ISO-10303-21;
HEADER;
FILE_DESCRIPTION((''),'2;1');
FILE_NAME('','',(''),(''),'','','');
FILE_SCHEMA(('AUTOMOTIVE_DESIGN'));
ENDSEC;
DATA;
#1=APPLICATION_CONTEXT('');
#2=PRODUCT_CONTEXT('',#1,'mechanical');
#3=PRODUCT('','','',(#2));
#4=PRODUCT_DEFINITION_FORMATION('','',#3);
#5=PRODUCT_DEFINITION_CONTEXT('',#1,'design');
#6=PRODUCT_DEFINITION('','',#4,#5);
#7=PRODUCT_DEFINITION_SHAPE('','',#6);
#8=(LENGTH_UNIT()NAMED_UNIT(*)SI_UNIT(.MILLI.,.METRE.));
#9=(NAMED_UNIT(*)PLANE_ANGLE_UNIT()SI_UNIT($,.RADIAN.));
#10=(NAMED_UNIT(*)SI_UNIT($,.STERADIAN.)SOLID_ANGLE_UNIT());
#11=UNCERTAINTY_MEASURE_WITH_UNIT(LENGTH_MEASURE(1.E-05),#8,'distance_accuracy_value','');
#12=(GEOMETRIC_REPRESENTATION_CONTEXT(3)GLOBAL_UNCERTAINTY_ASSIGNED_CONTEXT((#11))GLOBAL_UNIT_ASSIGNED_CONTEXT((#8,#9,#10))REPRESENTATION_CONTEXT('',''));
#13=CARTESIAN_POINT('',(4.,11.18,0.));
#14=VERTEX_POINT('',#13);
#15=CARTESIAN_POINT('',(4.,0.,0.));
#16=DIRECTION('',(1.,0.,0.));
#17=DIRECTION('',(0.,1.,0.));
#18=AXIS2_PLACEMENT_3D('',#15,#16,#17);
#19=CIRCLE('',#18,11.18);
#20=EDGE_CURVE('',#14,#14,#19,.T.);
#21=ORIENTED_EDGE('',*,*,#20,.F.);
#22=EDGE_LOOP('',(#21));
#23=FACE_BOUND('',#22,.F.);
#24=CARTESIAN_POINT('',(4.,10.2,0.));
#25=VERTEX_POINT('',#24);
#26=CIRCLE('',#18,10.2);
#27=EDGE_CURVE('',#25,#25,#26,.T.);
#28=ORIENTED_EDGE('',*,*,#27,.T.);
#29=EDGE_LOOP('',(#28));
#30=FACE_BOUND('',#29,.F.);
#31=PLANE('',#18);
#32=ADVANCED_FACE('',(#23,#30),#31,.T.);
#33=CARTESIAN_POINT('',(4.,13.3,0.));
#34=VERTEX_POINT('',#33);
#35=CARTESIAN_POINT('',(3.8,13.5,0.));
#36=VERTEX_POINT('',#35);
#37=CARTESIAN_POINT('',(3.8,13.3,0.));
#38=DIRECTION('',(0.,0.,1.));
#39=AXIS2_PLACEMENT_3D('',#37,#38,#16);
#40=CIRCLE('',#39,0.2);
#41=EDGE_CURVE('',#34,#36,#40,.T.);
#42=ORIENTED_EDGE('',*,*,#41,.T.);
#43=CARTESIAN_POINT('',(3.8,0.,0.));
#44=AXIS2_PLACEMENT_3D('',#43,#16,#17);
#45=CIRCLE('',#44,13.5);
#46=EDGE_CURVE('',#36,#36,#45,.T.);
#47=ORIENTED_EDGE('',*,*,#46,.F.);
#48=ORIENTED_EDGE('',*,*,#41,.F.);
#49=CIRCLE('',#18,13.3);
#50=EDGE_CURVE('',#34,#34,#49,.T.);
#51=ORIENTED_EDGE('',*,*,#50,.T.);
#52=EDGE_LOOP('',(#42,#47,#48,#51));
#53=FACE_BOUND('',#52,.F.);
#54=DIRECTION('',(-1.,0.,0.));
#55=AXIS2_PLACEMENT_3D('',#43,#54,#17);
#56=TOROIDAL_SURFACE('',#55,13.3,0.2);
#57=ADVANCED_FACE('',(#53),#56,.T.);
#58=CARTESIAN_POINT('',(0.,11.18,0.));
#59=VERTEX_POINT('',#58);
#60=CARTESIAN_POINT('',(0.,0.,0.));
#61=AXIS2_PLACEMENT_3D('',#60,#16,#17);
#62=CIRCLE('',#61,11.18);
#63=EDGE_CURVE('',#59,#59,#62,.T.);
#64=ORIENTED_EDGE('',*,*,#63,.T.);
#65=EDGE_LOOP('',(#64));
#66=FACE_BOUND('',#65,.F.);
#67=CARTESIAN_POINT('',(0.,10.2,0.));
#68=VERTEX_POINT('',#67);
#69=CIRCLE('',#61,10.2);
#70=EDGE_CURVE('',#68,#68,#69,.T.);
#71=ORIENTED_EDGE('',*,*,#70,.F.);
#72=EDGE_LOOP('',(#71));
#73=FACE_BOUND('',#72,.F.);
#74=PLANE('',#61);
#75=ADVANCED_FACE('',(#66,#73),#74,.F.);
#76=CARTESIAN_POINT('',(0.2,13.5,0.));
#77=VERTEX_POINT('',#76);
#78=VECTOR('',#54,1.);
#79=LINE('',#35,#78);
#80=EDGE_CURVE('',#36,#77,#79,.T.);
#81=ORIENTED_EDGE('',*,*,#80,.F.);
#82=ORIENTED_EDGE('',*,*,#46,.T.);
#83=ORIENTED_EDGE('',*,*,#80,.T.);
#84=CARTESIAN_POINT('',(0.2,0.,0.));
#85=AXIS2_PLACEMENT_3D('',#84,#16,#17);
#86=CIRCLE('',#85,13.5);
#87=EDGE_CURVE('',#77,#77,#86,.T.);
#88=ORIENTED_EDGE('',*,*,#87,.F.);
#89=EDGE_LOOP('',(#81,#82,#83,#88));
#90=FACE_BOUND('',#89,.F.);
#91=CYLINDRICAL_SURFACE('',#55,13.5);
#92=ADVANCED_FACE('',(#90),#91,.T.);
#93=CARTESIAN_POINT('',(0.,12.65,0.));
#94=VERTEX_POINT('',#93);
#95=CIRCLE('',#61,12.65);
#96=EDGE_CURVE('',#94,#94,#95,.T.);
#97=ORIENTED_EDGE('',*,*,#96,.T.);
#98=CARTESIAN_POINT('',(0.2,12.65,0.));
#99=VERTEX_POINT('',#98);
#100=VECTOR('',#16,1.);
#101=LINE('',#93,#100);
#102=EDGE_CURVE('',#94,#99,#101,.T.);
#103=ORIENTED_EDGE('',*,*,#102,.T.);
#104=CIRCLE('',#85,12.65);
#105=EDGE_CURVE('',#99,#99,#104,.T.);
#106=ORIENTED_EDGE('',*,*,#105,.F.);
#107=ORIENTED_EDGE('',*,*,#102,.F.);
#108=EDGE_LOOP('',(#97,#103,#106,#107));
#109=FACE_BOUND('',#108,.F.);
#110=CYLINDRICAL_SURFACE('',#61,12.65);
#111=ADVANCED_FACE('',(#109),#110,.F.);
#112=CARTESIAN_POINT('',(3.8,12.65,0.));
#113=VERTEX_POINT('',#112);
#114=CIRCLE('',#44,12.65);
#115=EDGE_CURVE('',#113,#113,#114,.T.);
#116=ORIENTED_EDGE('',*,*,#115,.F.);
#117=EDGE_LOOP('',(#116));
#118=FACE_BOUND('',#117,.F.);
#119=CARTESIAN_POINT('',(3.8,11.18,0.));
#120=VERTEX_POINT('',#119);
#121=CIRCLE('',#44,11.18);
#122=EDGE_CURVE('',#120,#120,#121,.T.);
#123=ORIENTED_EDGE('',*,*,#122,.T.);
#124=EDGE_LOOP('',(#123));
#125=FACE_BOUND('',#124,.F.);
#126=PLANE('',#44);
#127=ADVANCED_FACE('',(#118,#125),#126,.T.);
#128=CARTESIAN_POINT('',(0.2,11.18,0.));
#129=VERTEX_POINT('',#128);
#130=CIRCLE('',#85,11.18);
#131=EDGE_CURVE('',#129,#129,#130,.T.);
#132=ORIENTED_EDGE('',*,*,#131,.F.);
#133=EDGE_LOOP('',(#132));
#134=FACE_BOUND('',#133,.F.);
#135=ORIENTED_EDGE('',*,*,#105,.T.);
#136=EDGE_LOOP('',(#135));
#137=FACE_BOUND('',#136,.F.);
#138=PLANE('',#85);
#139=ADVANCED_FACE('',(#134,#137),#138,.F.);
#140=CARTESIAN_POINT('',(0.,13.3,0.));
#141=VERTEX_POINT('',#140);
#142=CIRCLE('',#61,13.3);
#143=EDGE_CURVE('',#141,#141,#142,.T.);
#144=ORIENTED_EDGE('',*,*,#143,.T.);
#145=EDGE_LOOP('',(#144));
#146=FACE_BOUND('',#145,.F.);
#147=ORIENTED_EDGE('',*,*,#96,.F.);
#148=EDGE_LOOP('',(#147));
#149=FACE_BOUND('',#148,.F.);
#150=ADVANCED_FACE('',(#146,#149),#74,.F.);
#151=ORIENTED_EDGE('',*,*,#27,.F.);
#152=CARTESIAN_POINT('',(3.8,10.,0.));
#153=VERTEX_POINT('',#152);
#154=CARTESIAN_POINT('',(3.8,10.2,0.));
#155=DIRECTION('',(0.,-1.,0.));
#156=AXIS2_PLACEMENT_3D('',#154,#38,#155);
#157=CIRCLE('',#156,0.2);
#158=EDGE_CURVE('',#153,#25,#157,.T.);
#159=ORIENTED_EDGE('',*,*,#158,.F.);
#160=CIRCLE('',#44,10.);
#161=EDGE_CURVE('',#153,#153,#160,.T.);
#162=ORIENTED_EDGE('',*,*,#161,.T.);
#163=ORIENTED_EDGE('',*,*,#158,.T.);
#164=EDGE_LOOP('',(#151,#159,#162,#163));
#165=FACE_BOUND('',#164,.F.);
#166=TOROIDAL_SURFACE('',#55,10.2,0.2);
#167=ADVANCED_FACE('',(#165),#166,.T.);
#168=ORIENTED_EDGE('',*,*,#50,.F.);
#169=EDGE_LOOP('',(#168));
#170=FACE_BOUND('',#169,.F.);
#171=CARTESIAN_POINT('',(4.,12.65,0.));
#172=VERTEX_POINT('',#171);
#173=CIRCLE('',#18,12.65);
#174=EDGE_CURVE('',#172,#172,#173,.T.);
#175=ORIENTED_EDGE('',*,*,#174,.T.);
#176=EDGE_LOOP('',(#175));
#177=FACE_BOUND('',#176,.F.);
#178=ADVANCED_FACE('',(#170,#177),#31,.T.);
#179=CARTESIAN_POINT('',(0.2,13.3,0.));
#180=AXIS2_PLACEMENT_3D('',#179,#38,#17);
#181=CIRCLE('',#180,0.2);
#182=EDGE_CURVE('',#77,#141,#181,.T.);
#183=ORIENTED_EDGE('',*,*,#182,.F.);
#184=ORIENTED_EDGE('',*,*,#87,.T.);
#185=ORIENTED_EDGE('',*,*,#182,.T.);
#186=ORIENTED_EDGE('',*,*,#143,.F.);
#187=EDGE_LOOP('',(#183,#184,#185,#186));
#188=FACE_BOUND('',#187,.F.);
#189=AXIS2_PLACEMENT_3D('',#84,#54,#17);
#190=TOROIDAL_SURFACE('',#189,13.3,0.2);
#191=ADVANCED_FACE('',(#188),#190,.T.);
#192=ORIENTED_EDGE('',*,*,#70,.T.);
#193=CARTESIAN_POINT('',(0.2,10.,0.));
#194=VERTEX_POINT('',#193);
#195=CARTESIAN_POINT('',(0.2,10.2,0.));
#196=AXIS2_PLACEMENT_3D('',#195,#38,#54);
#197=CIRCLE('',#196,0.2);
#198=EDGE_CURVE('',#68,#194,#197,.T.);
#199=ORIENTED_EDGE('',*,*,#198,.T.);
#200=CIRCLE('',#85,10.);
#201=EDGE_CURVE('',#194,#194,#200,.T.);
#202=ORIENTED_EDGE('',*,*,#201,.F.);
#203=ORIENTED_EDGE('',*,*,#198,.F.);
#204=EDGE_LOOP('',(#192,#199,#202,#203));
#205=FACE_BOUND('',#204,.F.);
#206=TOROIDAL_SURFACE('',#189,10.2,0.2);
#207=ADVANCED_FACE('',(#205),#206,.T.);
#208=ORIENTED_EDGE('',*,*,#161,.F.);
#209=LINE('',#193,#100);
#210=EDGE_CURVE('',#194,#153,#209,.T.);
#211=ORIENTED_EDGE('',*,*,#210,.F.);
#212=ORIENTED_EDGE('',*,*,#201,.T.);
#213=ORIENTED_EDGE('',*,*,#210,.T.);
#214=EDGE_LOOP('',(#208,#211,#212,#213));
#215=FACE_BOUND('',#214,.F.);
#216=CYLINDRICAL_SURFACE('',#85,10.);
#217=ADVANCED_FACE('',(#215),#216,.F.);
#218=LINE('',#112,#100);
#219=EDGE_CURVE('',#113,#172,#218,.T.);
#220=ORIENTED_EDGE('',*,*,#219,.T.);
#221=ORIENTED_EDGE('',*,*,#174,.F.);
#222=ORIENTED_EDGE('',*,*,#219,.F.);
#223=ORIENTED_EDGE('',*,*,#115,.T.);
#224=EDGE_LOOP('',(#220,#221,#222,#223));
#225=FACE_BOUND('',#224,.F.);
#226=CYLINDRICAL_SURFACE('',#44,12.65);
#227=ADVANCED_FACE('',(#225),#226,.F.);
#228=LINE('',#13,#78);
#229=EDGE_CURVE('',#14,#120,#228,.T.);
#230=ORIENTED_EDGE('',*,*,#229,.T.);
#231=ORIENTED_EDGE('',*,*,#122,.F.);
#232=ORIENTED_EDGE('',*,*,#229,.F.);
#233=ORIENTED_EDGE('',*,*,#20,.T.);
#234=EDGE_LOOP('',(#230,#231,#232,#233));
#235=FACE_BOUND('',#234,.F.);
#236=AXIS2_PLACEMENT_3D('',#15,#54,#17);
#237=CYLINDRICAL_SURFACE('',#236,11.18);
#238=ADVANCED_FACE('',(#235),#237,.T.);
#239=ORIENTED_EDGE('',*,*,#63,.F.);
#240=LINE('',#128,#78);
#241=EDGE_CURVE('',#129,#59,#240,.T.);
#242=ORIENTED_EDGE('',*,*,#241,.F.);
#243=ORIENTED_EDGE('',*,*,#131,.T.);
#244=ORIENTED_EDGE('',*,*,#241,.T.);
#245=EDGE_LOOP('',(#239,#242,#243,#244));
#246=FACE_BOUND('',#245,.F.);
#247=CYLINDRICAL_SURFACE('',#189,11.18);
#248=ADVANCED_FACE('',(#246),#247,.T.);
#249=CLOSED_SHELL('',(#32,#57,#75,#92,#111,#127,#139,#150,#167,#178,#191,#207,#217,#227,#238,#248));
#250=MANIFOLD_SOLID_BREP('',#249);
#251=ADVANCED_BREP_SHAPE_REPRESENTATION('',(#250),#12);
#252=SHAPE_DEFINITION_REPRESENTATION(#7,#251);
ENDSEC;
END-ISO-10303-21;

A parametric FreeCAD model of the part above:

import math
import FreeCAD as App
import Part
import Sketcher
from FreeCAD import Vector

doc = App.newDocument("Part")
body = doc.addObject("PartDesign::Body", "Body")

sketch1 = body.newObject("Sketcher::SketchObject", "Sketch")
sketch1.AttachmentSupport = (doc.getObject("XY_Plane"), [""])
sketch1.MapMode = "FlatFace"
sketch1.addGeometry([
    Part.LineSegment(Vector(0, 11.18, 0), Vector(0, 10.2, 0)),
    Part.ArcOfCircle(Part.Circle(Vector(0.2, 10.2, 0), Vector(0, 0, 1), 0.2), math.radians(180), math.radians(270)),
    Part.LineSegment(Vector(0.2, 10, 0), Vector(3.8, 10, 0)),
    Part.ArcOfCircle(Part.Circle(Vector(3.8, 10.2, 0), Vector(0, 0, 1), 0.2), math.radians(-90), math.radians(0)),
    Part.LineSegment(Vector(4, 10.2, 0), Vector(4, 11.18, 0)),
    Part.LineSegment(Vector(4, 11.18, 0), Vector(3.8, 11.18, 0)),
    Part.LineSegment(Vector(3.8, 11.18, 0), Vector(3.8, 12.65, 0)),
    Part.LineSegment(Vector(3.8, 12.65, 0), Vector(4, 12.65, 0)),
    Part.LineSegment(Vector(4, 12.65, 0), Vector(4, 13.3, 0)),
    Part.ArcOfCircle(Part.Circle(Vector(3.8, 13.3, 0), Vector(0, 0, 1), 0.2), math.radians(0), math.radians(90)),
    Part.LineSegment(Vector(3.8, 13.5, 0), Vector(0.2, 13.5, 0)),
    Part.ArcOfCircle(Part.Circle(Vector(0.2, 13.3, 0), Vector(0, 0, 1), 0.2), math.radians(90), math.radians(180)),
    Part.LineSegment(Vector(0, 13.3, 0), Vector(0, 12.65, 0)),
    Part.LineSegment(Vector(0, 12.65, 0), Vector(0.2, 12.65, 0)),
    Part.LineSegment(Vector(0.2, 12.65, 0), Vector(0.2, 11.18, 0)),
    Part.LineSegment(Vector(0.2, 11.18, 0), Vector(0, 11.18, 0)),
], False)
sketch1.addConstraint([
    Sketcher.Constraint("Tangent", 0, 2, 1, 1),
    Sketcher.Constraint("Tangent", 1, 2, 2, 1),
    Sketcher.Constraint("Tangent", 2, 2, 3, 1),
    Sketcher.Constraint("Tangent", 3, 2, 4, 1),
    Sketcher.Constraint("Coincident", 4, 2, 5, 1),
    Sketcher.Constraint("Coincident", 5, 2, 6, 1),
    Sketcher.Constraint("Coincident", 6, 2, 7, 1),
    Sketcher.Constraint("Coincident", 7, 2, 8, 1),
    Sketcher.Constraint("Tangent", 8, 2, 9, 1),
    Sketcher.Constraint("Tangent", 9, 2, 10, 1),
    Sketcher.Constraint("Tangent", 10, 2, 11, 1),
    Sketcher.Constraint("Tangent", 11, 2, 12, 1),
    Sketcher.Constraint("Coincident", 12, 2, 13, 1),
    Sketcher.Constraint("Coincident", 13, 2, 14, 1),
    Sketcher.Constraint("Coincident", 14, 2, 15, 1),
    Sketcher.Constraint("Coincident", 15, 2, 0, 1),
    Sketcher.Constraint("Vertical", 0),
    Sketcher.Constraint("Horizontal", 2),
    Sketcher.Constraint("Vertical", 4),
    Sketcher.Constraint("Horizontal", 5),
    Sketcher.Constraint("Vertical", 6),
    Sketcher.Constraint("Horizontal", 7),
    Sketcher.Constraint("Vertical", 8),
    Sketcher.Constraint("Horizontal", 10),
    Sketcher.Constraint("Vertical", 12),
    Sketcher.Constraint("Horizontal", 13),
    Sketcher.Constraint("Vertical", 14),
    Sketcher.Constraint("Horizontal", 15),
    Sketcher.Constraint("Equal", 1, 3),
    Sketcher.Constraint("Equal", 3, 9),
    Sketcher.Constraint("Equal", 9, 11),
    Sketcher.Constraint("PointOnObject", 0, 2, -2),
    Sketcher.Constraint("PointOnObject", 11, 2, -2),
    Sketcher.Constraint("Horizontal", 7, 2, 12, 2),
    Sketcher.Constraint("Horizontal", 5, 2, 14, 2),
    Sketcher.Constraint("Vertical", 3, 3, 9, 3),
    Sketcher.Constraint("Vertical", 2, 2, 5, 2),
    Sketcher.Constraint("Vertical", 10, 2, 13, 2),
    Sketcher.Constraint("Radius", 1, 0.2),
    Sketcher.Constraint("DistanceX", 2, 1, 2, 2, 3.6),
    Sketcher.Constraint("DistanceY", -1, 1, 1, 2, 10.0),
    Sketcher.Constraint("DistanceY", 0, 2, 0, 1, 0.98),
    Sketcher.Constraint("DistanceY", 6, 1, 6, 2, 1.47),
    Sketcher.Constraint("DistanceY", 8, 1, 8, 2, 0.65),
])
revolution = body.newObject("PartDesign::Revolution", "Revolution")
revolution.Profile = sketch1
revolution.ReferenceAxis = (sketch1, ["H_Axis"])
revolution.Angle = 360

doc.recompute()
